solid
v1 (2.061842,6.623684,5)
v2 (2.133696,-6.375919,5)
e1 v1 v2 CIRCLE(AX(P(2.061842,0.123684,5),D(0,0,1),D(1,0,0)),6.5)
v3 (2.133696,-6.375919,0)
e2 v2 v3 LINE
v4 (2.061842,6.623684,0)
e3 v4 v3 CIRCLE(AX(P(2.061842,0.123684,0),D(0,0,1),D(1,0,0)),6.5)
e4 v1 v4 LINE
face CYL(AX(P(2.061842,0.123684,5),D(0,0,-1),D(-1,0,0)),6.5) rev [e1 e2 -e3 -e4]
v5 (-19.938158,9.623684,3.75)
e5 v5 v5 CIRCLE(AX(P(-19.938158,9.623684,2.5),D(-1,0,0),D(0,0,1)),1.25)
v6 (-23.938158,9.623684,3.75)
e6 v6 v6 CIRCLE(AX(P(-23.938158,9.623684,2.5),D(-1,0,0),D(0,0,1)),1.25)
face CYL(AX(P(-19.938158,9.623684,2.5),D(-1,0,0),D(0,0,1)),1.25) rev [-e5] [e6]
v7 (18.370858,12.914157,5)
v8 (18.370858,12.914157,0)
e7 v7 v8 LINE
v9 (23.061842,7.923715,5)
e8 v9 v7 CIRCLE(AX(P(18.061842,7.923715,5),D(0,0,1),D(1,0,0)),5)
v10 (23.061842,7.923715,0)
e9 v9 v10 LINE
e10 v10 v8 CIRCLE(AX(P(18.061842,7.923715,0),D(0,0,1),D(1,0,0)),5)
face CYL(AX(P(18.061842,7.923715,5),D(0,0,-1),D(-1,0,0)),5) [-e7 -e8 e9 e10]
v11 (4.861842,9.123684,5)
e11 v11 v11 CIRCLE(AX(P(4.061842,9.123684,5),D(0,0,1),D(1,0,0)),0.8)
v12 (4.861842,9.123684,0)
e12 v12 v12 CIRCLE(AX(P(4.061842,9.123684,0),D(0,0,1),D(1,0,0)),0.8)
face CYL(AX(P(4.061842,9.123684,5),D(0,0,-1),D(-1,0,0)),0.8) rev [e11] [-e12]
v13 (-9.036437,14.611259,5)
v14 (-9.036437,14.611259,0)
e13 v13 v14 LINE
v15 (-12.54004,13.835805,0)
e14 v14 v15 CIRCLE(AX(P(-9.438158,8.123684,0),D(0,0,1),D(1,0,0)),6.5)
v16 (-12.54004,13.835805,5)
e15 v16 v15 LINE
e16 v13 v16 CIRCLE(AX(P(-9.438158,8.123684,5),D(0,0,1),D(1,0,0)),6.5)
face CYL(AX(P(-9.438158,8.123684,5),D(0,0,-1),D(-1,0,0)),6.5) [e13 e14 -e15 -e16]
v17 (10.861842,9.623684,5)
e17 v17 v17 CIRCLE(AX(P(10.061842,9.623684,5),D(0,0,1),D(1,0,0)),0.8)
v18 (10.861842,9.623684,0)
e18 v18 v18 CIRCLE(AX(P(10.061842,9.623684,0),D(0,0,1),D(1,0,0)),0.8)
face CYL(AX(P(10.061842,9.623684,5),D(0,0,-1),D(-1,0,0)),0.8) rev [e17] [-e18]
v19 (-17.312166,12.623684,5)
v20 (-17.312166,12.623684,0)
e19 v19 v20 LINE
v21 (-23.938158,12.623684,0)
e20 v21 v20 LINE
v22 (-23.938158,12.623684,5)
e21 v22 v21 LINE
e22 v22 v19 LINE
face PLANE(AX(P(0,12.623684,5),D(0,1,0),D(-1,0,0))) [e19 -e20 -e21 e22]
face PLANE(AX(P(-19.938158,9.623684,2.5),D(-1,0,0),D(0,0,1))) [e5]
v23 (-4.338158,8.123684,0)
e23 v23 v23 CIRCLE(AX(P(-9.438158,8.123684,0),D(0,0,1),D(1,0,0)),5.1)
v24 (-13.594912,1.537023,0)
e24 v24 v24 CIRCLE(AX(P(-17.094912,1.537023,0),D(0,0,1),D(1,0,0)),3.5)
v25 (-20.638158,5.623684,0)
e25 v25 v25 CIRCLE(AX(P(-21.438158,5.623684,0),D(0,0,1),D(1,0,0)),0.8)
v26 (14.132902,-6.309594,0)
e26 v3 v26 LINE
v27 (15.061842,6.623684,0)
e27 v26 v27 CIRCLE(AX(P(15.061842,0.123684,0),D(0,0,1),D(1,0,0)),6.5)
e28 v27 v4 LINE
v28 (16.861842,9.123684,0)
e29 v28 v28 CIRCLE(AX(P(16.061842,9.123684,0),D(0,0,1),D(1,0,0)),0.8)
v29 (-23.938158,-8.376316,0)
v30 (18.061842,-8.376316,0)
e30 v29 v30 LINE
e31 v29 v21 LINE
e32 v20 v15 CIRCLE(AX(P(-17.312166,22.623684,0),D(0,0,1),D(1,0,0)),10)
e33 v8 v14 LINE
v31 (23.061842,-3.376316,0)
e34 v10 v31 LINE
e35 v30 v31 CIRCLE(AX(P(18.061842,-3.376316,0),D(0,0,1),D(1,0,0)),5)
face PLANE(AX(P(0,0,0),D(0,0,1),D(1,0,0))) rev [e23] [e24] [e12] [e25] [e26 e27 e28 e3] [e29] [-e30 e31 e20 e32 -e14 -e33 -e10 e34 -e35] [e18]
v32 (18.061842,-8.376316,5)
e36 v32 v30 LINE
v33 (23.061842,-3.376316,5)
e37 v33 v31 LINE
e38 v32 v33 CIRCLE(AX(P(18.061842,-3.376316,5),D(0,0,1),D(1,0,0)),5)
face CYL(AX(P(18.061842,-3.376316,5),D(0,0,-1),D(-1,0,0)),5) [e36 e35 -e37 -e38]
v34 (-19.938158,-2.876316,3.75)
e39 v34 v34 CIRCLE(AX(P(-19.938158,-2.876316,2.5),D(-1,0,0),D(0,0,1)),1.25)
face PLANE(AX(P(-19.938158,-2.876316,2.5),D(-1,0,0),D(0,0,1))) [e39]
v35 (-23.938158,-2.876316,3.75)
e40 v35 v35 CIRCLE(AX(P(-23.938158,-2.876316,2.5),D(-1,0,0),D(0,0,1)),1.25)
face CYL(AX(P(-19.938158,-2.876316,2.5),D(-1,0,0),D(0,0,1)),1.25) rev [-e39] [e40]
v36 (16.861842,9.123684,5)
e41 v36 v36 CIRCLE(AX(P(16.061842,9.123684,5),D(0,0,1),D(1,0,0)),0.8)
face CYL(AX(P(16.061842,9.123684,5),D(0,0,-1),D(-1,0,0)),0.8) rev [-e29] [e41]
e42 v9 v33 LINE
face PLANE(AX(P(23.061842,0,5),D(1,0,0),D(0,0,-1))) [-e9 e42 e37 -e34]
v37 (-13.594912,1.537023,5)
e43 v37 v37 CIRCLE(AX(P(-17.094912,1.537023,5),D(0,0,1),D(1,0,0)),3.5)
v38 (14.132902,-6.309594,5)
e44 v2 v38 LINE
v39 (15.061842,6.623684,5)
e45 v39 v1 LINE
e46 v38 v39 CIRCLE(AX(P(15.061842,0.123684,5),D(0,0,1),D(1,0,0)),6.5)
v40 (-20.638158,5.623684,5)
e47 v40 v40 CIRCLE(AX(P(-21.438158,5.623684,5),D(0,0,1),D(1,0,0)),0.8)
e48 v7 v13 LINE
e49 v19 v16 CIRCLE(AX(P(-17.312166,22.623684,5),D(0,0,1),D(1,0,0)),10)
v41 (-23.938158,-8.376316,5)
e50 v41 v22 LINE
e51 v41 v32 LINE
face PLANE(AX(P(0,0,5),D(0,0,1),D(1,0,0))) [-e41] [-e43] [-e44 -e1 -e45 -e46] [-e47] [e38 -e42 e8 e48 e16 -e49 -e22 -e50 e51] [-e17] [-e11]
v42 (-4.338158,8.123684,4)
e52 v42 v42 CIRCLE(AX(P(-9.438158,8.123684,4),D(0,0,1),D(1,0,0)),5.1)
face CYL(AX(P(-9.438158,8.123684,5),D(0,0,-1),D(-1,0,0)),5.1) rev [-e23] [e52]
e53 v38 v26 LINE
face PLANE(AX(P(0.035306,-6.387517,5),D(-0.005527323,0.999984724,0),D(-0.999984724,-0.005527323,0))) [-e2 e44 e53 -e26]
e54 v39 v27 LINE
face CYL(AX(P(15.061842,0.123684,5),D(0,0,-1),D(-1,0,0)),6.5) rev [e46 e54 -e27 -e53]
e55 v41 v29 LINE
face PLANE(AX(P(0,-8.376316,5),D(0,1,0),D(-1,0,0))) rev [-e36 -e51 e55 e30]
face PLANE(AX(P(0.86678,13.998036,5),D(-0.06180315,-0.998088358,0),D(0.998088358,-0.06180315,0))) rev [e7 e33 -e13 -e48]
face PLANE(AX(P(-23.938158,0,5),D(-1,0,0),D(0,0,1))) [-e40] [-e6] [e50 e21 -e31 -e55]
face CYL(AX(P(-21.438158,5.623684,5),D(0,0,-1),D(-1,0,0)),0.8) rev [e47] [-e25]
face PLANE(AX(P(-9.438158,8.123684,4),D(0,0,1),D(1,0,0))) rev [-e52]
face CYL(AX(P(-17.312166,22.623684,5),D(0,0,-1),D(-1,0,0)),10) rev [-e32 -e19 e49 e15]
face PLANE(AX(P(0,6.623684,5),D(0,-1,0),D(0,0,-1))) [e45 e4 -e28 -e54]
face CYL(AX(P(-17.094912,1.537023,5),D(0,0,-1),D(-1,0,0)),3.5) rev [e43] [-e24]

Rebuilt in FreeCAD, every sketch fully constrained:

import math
import FreeCAD as App
import Part
import Sketcher

V = App.Vector
Q = App.Units.Quantity

doc = App.newDocument("Part")
body = doc.addObject("PartDesign::Body", "Body")

# Sketch on XY plane
sketch1 = body.newObject("Sketcher::SketchObject", "Sketch")
sketch1.AttachmentSupport = (doc.getObject("XY_Plane"), [""])
sketch1.MapMode = "FlatFace"
sketch1.addGeometry(Part.ArcOfCircle(Part.Circle(V(18.061842, 7.923715, 0), V(0, 0, 1), 5), math.radians(0), math.radians(86.456682)), False)
sketch1.addGeometry(Part.LineSegment(V(18.370858, 12.914157, 0), V(-9.036437, 14.611259, 0)), False)
sketch1.addGeometry(Part.ArcOfCircle(Part.Circle(V(-9.438158, 8.123684, 0), V(0, 0, 1), 6.5), math.radians(86.456682), math.radians(118.50351)), False)
sketch1.addGeometry(Part.ArcOfCircle(Part.Circle(V(-17.312166, 22.623684, 0), V(0, 0, 1), 10), math.radians(-90), math.radians(-61.49649)), False)
sketch1.addGeometry(Part.LineSegment(V(-17.312166, 12.623684, 0), V(-23.938158, 12.623684, 0)), False)
sketch1.addGeometry(Part.LineSegment(V(-23.938158, 12.623684, 0), V(-23.938158, -8.376316, 0)), False)
sketch1.addGeometry(Part.LineSegment(V(-23.938158, -8.376316, 0), V(18.061842, -8.376316, 0)), False)
sketch1.addGeometry(Part.ArcOfCircle(Part.Circle(V(18.061842, -3.376316, 0), V(0, 0, 1), 5), math.radians(-90), math.radians(0)), False)
sketch1.addGeometry(Part.LineSegment(V(23.061842, -3.376316, 0), V(23.061842, 7.923715, 0)), False)
sketch1.addGeometry(Part.LineSegment(V(14.132902, -6.309594, 0), V(2.133696, -6.375919, 0)), False)
sketch1.addGeometry(Part.LineSegment(V(2.133696, -6.375919, 0), V(2.061842, -6.376316, 0)), False)
sketch1.addGeometry(Part.ArcOfCircle(Part.Circle(V(2.061842, 0.123684, 0), V(0, 0, 1), 6.5), math.radians(90), math.radians(270)), False)
sketch1.addGeometry(Part.LineSegment(V(2.061842, 6.623684, 0), V(15.061842, 6.623684, 0)), False)
sketch1.addGeometry(Part.ArcOfCircle(Part.Circle(V(15.061842, 0.123684, 0), V(0, 0, 1), 6.5), math.radians(-81.150117), math.radians(90)), False)
sketch1.addGeometry(Part.ArcOfCircle(Part.Circle(V(15.061842, 0.123684, 0), V(0, 0, 1), 6.5), math.radians(-98.216495), math.radians(-81.150117)), False)
sketch1.addGeometry(Part.Circle(V(16.061842, 9.123684, 0), V(0, 0, 1), 0.8), False)
sketch1.addGeometry(Part.Circle(V(10.061842, 9.623684, 0), V(0, 0, 1), 0.8), False)
sketch1.addGeometry(Part.Circle(V(4.061842, 9.123684, 0), V(0, 0, 1), 0.8), False)
sketch1.addGeometry(Part.Circle(V(-17.094912, 1.537023, 0), V(0, 0, 1), 3.5), False)
sketch1.addGeometry(Part.Circle(V(-9.438158, 8.123684, 0), V(0, 0, 1), 5.1), False)
sketch1.addGeometry(Part.Circle(V(-21.438158, 5.623684, 0), V(0, 0, 1), 0.8), False)
sketch1.addConstraint(Sketcher.Constraint("Tangent", 0, 2, 1, 1))
sketch1.addConstraint(Sketcher.Constraint("Tangent", 1, 2, 2, 1))
sketch1.addConstraint(Sketcher.Constraint("Tangent", 2, 2, 3, 2))
sketch1.addConstraint(Sketcher.Constraint("Tangent", 3, 1, 4, 1))
sketch1.addConstraint(Sketcher.Constraint("Coincident", 4, 2, 5, 1))
sketch1.addConstraint(Sketcher.Constraint("Coincident", 5, 2, 6, 1))
sketch1.addConstraint(Sketcher.Constraint("Tangent", 6, 2, 7, 1))
sketch1.addConstraint(Sketcher.Constraint("Tangent", 7, 2, 8, 1))
sketch1.addConstraint(Sketcher.Constraint("Tangent", 8, 2, 0, 1))
sketch1.addConstraint(Sketcher.Constraint("Coincident", 9, 2, 10, 1))
sketch1.addConstraint(Sketcher.Constraint("Coincident", 10, 2, 11, 2))
sketch1.addConstraint(Sketcher.Constraint("Tangent", 11, 1, 12, 1))
sketch1.addConstraint(Sketcher.Constraint("Tangent", 12, 2, 13, 2))
sketch1.addConstraint(Sketcher.Constraint("Tangent", 13, 1, 14, 2))
sketch1.addConstraint(Sketcher.Constraint("Coincident", 14, 1, 9, 1))
sketch1.addConstraint(Sketcher.Constraint("Horizontal", 4))
sketch1.addConstraint(Sketcher.Constraint("Vertical", 5))
sketch1.addConstraint(Sketcher.Constraint("Horizontal", 6))
sketch1.addConstraint(Sketcher.Constraint("Vertical", 8))
sketch1.addConstraint(Sketcher.Constraint("Horizontal", 12))
sketch1.addConstraint(Sketcher.Constraint("Coincident", 19, 3, 2, 3))
sketch1.addConstraint(Sketcher.Constraint("Equal", 0, 7))
sketch1.addConstraint(Sketcher.Constraint("Equal", 2, 11))
sketch1.addConstraint(Sketcher.Constraint("Equal", 11, 13))
sketch1.addConstraint(Sketcher.Constraint("Equal", 13, 14))
sketch1.addConstraint(Sketcher.Constraint("Equal", 15, 16))
sketch1.addConstraint(Sketcher.Constraint("Equal", 16, 17))
sketch1.addConstraint(Sketcher.Constraint("Equal", 17, 20))
sketch1.addConstraint(Sketcher.Constraint("Parallel", 9, 10))
sketch1.addConstraint(Sketcher.Constraint("Horizontal", 15, 3, 17, 3))
sketch1.addConstraint(Sketcher.Constraint("Vertical", 11, 3, 10, 2))
sketch1.addConstraint(Sketcher.Constraint("Vertical", 15, 3, 13, 1))
sketch1.addConstraint(Sketcher.Constraint("Diameter", 18, Q("7 mm")))
sketch1.addConstraint(Sketcher.Constraint("Radius", 0, Q("5 mm")))
sketch1.addConstraint(Sketcher.Constraint("Radius", 3, Q("10 mm")))
sketch1.addConstraint(Sketcher.Constraint("Diameter", 15, Q("1.6 mm")))
sketch1.addConstraint(Sketcher.Constraint("Diameter", 19, Q("10.2 mm")))
sketch1.addConstraint(Sketcher.Constraint("Radius", 2, Q("6.5 mm")))
sketch1.addConstraint(Sketcher.Constraint("DistanceX", 6, 1, 6, 2, Q("42 mm")))
sketch1.addConstraint(Sketcher.Constraint("DistanceX", 12, 1, 12, 2, Q("13 mm")))
sketch1.addConstraint(Sketcher.Constraint("DistanceY", 5, 2, 5, 1, Q("21 mm")))
sketch1.addConstraint(Sketcher.Constraint("DistanceY", 11, 3, 2, 3, Q("8 mm")))
sketch1.addConstraint(Sketcher.Constraint("DistanceX", 11, 3, 7, 3, Q("16 mm")))
sketch1.addConstraint(Sketcher.Constraint("DistanceX", 15, 3, 0, 3, Q("2 mm")))
sketch1.addConstraint(Sketcher.Constraint("DistanceY", 13, 3, 15, 3, Q("9 mm")))
sketch1.addConstraint(Sketcher.Constraint("DistanceX", 16, 3, 15, 3, Q("6 mm")))
sketch1.addConstraint(Sketcher.Constraint("DistanceX", 17, 3, 16, 3, Q("6 mm")))
sketch1.addConstraint(Sketcher.Constraint("DistanceX", 20, 3, 19, 3, Q("12 mm")))
sketch1.addConstraint(Sketcher.Constraint("DistanceY", 20, 3, 3, 3, Q("17 mm")))
sketch1.addConstraint(Sketcher.Constraint("DistanceY", 11, 1, 16, 3, Q("3 mm")))
sketch1.addConstraint(Sketcher.Constraint("DistanceX", 2, 3, 0, 3, Q("27.5 mm")))
sketch1.addConstraint(Sketcher.Constraint("DistanceY", 2, 3, 3, 3, Q("14.5 mm")))
sketch1.addConstraint(Sketcher.Constraint("DistanceY", 8, 1, 8, 2, Q("11.300031 mm")))
sketch1.addConstraint(Sketcher.Constraint("DistanceX", -1, 1, 14, 1, Q("14.132902 mm")))
sketch1.addConstraint(Sketcher.Constraint("Distance", 9, Q("11.999389 mm")))
sketch1.addConstraint(Sketcher.Constraint("DistanceY", -1, 1, 1, 2, Q("14.611259 mm")))
sketch1.addConstraint(Sketcher.Constraint("DistanceX", 2, 2, -1, 1, Q("12.54004 mm")))
sketch1.addConstraint(Sketcher.Constraint("DistanceY", 18, 3, 2, 3, Q("6.586662 mm")))
sketch1.addConstraint(Sketcher.Constraint("DistanceX", 18, 3, -1, 1, Q("17.094912 mm")))
pad1 = body.newObject("PartDesign::Pad", "Pad")
pad1.Profile = sketch1
pad1.Length = 5

# Sketch on YZ plane
sketch2 = body.newObject("Sketcher::SketchObject", "Sketch001")
sketch2.AttachmentSupport = (doc.getObject("YZ_Plane"), [""])
sketch2.MapMode = "FlatFace"
sketch2.AttachmentOffset = App.Placement(V(0, 0, -23.938158), App.Rotation())
sketch2.addGeometry(Part.Circle(V(9.623684, 2.5, 0), V(0, 0, 1), 1.25), False)
sketch2.addGeometry(Part.Circle(V(-2.876316, 2.5, 0), V(0, 0, 1), 1.25), False)
sketch2.addConstraint(Sketcher.Constraint("Equal", 0, 1))
sketch2.addConstraint(Sketcher.Constraint("Horizontal", 0, 3, 1, 3))
sketch2.addConstraint(Sketcher.Constraint("Diameter", 0, Q("2.5 mm")))
sketch2.addConstraint(Sketcher.Constraint("DistanceY", -1, 1, 0, 3, Q("2.5 mm")))
sketch2.addConstraint(Sketcher.Constraint("DistanceX", 1, 3, 0, 3, Q("12.5 mm")))
sketch2.addConstraint(Sketcher.Constraint("DistanceX", -1, 1, 0, 3, Q("9.623684 mm")))
pocket1 = body.newObject("PartDesign::Pocket", "Pocket")
pocket1.Profile = sketch2
pocket1.Length = 4
pocket1.Reversed = True

# Sketch on XY plane
sketch3 = body.newObject("Sketcher::SketchObject", "Sketch002")
sketch3.AttachmentSupport = (doc.getObject("XY_Plane"), [""])
sketch3.MapMode = "FlatFace"
sketch3.AttachmentOffset = App.Placement(V(0, 0, 4), App.Rotation())
sketch3.addGeometry(Part.Circle(V(-9.438158, 8.123684, 0), V(0, 0, 1), 5.1), False)
sketch3.addConstraint(Sketcher.Constraint("Diameter", 0, Q("10.2 mm")))
sketch3.addConstraint(Sketcher.Constraint("DistanceX", 0, 3, -1, 1, Q("9.438158 mm")))
sketch3.addConstraint(Sketcher.Constraint("DistanceY", -1, 1, 0, 3, Q("8.123684 mm")))
pad2 = body.newObject("PartDesign::Pad", "Pad001")
pad2.Profile = sketch3
pad2.Length = 1

doc.recompute()
